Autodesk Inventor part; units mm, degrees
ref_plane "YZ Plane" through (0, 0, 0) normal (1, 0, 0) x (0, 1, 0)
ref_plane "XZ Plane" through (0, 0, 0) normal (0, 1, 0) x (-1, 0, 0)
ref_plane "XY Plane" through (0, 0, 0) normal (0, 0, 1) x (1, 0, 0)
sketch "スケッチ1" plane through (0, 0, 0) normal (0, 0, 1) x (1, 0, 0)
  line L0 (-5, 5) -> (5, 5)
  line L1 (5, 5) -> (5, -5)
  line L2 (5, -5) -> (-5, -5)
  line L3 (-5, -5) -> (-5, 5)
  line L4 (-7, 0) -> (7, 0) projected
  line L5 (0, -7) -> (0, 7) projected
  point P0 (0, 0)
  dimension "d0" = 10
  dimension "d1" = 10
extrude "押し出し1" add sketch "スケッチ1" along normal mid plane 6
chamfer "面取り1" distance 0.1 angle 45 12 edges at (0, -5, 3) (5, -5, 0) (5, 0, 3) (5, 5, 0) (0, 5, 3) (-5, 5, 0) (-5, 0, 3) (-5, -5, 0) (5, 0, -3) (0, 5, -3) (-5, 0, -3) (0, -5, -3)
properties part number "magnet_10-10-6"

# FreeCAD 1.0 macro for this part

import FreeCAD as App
import Part
import Sketcher


def add_polygon(sketch, points):
    """Adds a closed chain of lines whose ends are joined by coincident constraints."""
    first, n = sketch.GeometryCount, len(points)
    for a, b in zip(points, points[1:] + points[:1]):
        sketch.addGeometry(Part.LineSegment(App.Vector(*a, 0), App.Vector(*b, 0)), False)
    for i in range(n):
        sketch.addConstraint(Sketcher.Constraint("Coincident", first + i, 2, first + (i + 1) % n, 1))

doc = App.newDocument("Part")
body = doc.addObject("PartDesign::Body", "Body")

# Sketch on XY plane
sketch1 = doc.addObject("Sketcher::SketchObject", "Sketch")
body.addObject(sketch1)
sketch1.AttachmentSupport = (doc.XY_Plane, [""])
sketch1.MapMode = "FlatFace"
add_polygon(sketch1, [(-5, 5), (-5, -5), (5, -5), (5, 5)])  # lines 0-3
sketch1.addConstraint(Sketcher.Constraint("Vertical", 0))
sketch1.addConstraint(Sketcher.Constraint("Horizontal", 1))
sketch1.addConstraint(Sketcher.Constraint("Vertical", 2))
sketch1.addConstraint(Sketcher.Constraint("Horizontal", 3))
sketch1.addConstraint(Sketcher.Constraint("Symmetric", 0, 2, 2, 2, -1, 1))
sketch1.addConstraint(Sketcher.Constraint("Equal", 3, 0))
sketch1.addConstraint(Sketcher.Constraint("DistanceX", 1, 1, 1, 2, 10.0))
pad1 = doc.addObject("PartDesign::Pad", "Pad")
body.addObject(pad1)
pad1.Profile = sketch1
pad1.Length = 6
pad1.Midplane = True
doc.recompute()

chamfer = doc.addObject("PartDesign::Chamfer", "Chamfer")
body.addObject(chamfer)
chamfer.Base = (pad1, ["Edge1"])
chamfer.UseAllEdges = True
chamfer.Size = 0.1

doc.recompute()
